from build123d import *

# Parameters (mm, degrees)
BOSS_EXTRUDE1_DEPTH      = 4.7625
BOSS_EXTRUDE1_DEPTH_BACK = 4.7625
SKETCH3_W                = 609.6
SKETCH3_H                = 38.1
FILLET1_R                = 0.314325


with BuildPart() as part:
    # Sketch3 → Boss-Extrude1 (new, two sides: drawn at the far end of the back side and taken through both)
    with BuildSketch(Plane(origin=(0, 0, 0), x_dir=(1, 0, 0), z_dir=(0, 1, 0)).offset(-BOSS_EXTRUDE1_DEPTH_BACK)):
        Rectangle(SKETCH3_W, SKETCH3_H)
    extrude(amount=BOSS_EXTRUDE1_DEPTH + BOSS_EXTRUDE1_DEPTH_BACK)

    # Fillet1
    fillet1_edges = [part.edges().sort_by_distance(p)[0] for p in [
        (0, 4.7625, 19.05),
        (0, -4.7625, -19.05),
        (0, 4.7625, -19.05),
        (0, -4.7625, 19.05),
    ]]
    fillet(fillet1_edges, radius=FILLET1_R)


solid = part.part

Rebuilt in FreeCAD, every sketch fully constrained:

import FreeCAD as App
import Part
import Sketcher

V = App.Vector
Q = App.Units.Quantity


def edges_at(feature, points):
    """Names of the edges that pass closest to the given points."""
    edges = feature.Shape.Edges
    near = lambda p: min(range(len(edges)), key=lambda i: edges[i].distToShape(Part.Vertex(*p))[0])
    return sorted({f"Edge{near(p) + 1}" for p in points})


def add_polygon(sketch, points):
    """Adds a closed chain of lines whose ends are joined by coincident constraints."""
    first, n = sketch.GeometryCount, len(points)
    for a, b in zip(points, points[1:] + points[:1]):
        sketch.addGeometry(Part.LineSegment(App.Vector(*a, 0), App.Vector(*b, 0)), False)
    for i in range(n):
        sketch.addConstraint(Sketcher.Constraint("Coincident", first + i, 2, first + (i + 1) % n, 1))

doc = App.newDocument("Part")
params = doc.addObject("Spreadsheet::Sheet", "Params")
for row, (alias, value) in enumerate([
    ("sketch1_width", "24 in"),
    ("sketch1_height", "1.5 in"),
    ("pad1_length", "0.1875 in"),
    ("pad1_length2", "0.1875 in"),
    ("fillet_radius", "0.314325 mm"),
], start=1):
    params.set(f"A{row}", alias)
    params.set(f"B{row}", "=" + value)
    params.setAlias(f"B{row}", alias)

body = doc.addObject("PartDesign::Body", "Body")

# Sketch on XZ plane
sketch1 = doc.addObject("Sketcher::SketchObject", "Sketch")
body.addObject(sketch1)
sketch1.AttachmentSupport = (doc.XZ_Plane, [""])
sketch1.MapMode = "FlatFace"
add_polygon(sketch1, [(-305, -19), (-305, 19), (305, 19), (305, -19)])  # lines 0-3
sketch1.addConstraint([
    Sketcher.Constraint("Vertical", 0),
    Sketcher.Constraint("Horizontal", 1),
    Sketcher.Constraint("Vertical", 2),
    Sketcher.Constraint("Horizontal", 3),
    Sketcher.Constraint("Symmetric", 0, 2, 2, 2, -1, 1),
    Sketcher.Constraint("DistanceX", 1, 1, 1, 2, Q("24 in")),
    Sketcher.Constraint("DistanceY", 0, 1, 0, 2, Q("1.5 in")),
])
sketch1.setExpression("Constraints[9]", "Params.sketch1_width")
sketch1.setExpression("Constraints[10]", "Params.sketch1_height")
pad1 = doc.addObject("PartDesign::Pad", "Pad")
body.addObject(pad1)
pad1.Profile = sketch1
pad1.Type = "TwoLengths"
pad1.setExpression("Length", "Params.pad1_length")
pad1.setExpression("Length2", "Params.pad1_length2")
pad1.Reversed = True
doc.recompute()

fillet = doc.addObject("PartDesign::Fillet", "Fillet")
body.addObject(fillet)
fillet.Base = (pad1, edges_at(pad1, [
    (0, 4.763, 19.05),
    (0, -4.763, -19.05),
    (0, 4.763, -19.05),
    (0, -4.763, 19.05),
]))
fillet.setExpression("Radius", "Params.fillet_radius")

doc.recompute()
